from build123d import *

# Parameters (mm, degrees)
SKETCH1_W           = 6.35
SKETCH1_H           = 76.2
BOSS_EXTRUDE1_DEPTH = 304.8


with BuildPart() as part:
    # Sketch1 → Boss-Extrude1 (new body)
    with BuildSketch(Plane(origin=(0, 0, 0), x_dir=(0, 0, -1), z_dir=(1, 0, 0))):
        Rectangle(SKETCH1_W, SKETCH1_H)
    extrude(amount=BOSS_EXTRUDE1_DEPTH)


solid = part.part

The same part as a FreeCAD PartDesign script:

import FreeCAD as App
import Part
import Sketcher
from FreeCAD import Vector
Q = App.Units.Quantity


def add_polygon(sketch, points):
    """Adds a closed chain of lines whose ends are joined by coincident constraints."""
    first, n = sketch.GeometryCount, len(points)
    for a, b in zip(points, points[1:] + points[:1]):
        sketch.addGeometry(Part.LineSegment(App.Vector(*a, 0), App.Vector(*b, 0)), False)
    for i in range(n):
        sketch.addConstraint(Sketcher.Constraint("Coincident", first + i, 2, first + (i + 1) % n, 1))

doc = App.newDocument("Part")
body = doc.addObject("PartDesign::Body", "Body")

sketch1 = body.newObject("Sketcher::SketchObject", "Sketch")
sketch1.AttachmentSupport = (doc.getObject("YZ_Plane"), [""])
sketch1.MapMode = "FlatFace"
add_polygon(sketch1, [(38, 3), (-38, 3), (-38, -3), (38, -3)])
sketch1.addConstraint([
    Sketcher.Constraint("Horizontal", 0),
    Sketcher.Constraint("Vertical", 1),
    Sketcher.Constraint("Horizontal", 2),
    Sketcher.Constraint("Vertical", 3),
    Sketcher.Constraint("Symmetric", 0, 2, 2, 2, -1, 1),
    Sketcher.Constraint("DistanceX", 0, 2, 0, 1, Q("3 in")),
    Sketcher.Constraint("DistanceY", 1, 2, 1, 1, Q("0.25 in")),
])
pad1 = body.newObject("PartDesign::Pad", "Pad")
pad1.Profile = sketch1
pad1.Length = Q("12 in")

doc.recompute()
